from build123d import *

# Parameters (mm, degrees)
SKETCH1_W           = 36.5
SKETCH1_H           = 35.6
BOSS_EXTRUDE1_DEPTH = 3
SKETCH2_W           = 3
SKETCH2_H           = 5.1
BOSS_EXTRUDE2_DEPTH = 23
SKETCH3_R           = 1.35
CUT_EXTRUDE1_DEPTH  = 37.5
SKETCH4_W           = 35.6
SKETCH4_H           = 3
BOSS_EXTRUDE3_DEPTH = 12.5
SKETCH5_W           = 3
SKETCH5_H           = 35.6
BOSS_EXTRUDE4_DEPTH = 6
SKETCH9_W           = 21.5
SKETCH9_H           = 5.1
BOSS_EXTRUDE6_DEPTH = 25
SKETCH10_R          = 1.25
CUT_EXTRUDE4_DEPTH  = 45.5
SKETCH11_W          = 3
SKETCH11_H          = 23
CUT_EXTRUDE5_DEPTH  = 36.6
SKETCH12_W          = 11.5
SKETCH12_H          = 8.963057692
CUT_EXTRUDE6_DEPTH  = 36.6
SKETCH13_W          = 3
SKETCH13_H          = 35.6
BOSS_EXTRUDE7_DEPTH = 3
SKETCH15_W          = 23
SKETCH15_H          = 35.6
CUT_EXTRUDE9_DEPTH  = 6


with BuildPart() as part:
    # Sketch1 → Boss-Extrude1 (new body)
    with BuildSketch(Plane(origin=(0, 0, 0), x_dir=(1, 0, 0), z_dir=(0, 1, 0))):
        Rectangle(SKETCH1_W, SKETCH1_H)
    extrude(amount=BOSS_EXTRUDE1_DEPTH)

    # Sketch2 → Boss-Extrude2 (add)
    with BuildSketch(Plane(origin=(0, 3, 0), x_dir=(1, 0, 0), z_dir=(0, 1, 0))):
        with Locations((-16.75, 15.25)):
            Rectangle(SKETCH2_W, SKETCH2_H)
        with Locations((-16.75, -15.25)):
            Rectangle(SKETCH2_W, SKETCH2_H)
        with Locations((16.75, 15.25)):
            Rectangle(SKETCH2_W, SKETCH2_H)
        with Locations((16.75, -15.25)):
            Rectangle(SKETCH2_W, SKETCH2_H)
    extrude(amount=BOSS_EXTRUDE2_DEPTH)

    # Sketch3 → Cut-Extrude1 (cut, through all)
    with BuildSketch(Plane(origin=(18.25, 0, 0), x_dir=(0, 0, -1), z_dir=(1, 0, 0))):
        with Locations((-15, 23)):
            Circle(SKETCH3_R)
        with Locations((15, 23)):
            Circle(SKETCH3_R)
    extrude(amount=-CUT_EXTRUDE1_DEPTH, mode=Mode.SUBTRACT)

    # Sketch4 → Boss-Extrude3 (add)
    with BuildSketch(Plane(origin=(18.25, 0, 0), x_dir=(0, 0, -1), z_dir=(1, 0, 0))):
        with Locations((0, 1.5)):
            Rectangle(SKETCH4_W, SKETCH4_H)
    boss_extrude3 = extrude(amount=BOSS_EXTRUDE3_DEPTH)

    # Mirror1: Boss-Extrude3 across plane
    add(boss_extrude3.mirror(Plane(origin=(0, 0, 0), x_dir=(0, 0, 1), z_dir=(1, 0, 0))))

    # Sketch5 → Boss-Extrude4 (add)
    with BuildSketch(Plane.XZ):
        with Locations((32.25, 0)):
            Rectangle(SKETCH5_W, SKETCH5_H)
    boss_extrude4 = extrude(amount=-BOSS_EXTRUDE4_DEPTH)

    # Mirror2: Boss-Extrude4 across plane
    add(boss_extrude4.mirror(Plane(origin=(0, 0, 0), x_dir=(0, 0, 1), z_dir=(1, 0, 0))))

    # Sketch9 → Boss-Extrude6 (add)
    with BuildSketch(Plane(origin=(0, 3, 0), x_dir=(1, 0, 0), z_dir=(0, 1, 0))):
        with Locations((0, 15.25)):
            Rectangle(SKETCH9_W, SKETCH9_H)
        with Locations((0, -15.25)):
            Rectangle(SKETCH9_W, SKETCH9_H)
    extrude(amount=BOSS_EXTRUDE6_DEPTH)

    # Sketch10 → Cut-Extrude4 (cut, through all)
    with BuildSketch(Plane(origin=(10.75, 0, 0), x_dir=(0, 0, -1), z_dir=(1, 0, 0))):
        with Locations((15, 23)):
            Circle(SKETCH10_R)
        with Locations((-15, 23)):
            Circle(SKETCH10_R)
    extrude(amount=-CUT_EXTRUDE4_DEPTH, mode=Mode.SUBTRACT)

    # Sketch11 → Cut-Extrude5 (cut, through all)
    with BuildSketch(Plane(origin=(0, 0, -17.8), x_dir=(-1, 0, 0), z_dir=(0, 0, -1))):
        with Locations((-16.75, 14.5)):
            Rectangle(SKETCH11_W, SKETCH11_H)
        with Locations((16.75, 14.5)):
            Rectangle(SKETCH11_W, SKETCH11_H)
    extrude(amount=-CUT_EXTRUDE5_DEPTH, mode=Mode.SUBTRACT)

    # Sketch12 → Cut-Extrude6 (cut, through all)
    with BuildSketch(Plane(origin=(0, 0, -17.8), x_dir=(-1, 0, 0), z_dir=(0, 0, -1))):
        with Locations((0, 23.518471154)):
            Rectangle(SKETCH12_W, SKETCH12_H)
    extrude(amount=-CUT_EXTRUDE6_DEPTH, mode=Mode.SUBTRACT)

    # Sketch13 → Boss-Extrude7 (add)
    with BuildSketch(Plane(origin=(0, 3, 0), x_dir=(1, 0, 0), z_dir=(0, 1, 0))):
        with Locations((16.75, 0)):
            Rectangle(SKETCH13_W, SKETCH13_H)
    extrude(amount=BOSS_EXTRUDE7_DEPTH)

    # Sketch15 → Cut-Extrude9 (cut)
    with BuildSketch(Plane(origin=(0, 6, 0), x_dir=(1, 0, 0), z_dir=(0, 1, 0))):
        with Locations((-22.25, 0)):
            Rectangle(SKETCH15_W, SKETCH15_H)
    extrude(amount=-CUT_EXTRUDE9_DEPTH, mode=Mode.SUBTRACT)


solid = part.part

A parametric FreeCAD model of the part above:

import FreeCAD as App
import Part
import Sketcher

V = App.Vector
Q = App.Units.Quantity


def add_polygon(sketch, points):
    """Adds a closed chain of lines whose ends are joined by coincident constraints."""
    first, n = sketch.GeometryCount, len(points)
    for a, b in zip(points, points[1:] + points[:1]):
        sketch.addGeometry(Part.LineSegment(App.Vector(*a, 0), App.Vector(*b, 0)), False)
    for i in range(n):
        sketch.addConstraint(Sketcher.Constraint("Coincident", first + i, 2, first + (i + 1) % n, 1))

doc = App.newDocument("Part")
body = doc.addObject("PartDesign::Body", "Body")

# Sketch on XZ plane
sketch1 = body.newObject("Sketcher::SketchObject", "Sketch")
sketch1.AttachmentSupport = (doc.getObject("XZ_Plane"), [""])
sketch1.MapMode = "FlatFace"
add_polygon(sketch1, [(-18.25, -17.8), (-18.25, 17.8), (18.25, 17.8), (18.25, -17.8)])  # lines 0-3
sketch1.addConstraint([
    Sketcher.Constraint("Vertical", 0),
    Sketcher.Constraint("Horizontal", 1),
    Sketcher.Constraint("Vertical", 2),
    Sketcher.Constraint("Horizontal", 3),
    Sketcher.Constraint("Symmetric", 0, 2, 2, 2, -1, 1),
    Sketcher.Constraint("DistanceX", 1, 1, 1, 2, Q("36.5 mm")),
    Sketcher.Constraint("DistanceY", 0, 1, 0, 2, Q("35.6 mm")),
])
pad1 = body.newObject("PartDesign::Pad", "Pad")
pad1.Profile = sketch1
pad1.Length = 3
pad1.Reversed = True

# Sketch on XZ plane
sketch2 = body.newObject("Sketcher::SketchObject", "Sketch001")
sketch2.AttachmentSupport = (doc.getObject("XZ_Plane"), [""])
sketch2.MapMode = "FlatFace"
sketch2.AttachmentOffset = App.Placement(V(0, 0, -3), App.Rotation())
add_polygon(sketch2, [(-18.25, -17.8), (-18.25, -12.7), (-15.25, -12.7), (-15.25, -17.8)])  # lines 0-3
add_polygon(sketch2, [(-18.25, 12.7), (-18.25, 17.8), (-15.25, 17.8), (-15.25, 12.7)])  # lines 4-7
add_polygon(sketch2, [(15.25, -17.8), (15.25, -12.7), (18.25, -12.7), (18.25, -17.8)])  # lines 8-11
add_polygon(sketch2, [(15.25, 12.7), (15.25, 17.8), (18.25, 17.8), (18.25, 12.7)])  # lines 12-15
sketch2.addConstraint([
    Sketcher.Constraint("Vertical", 0),
    Sketcher.Constraint("Horizontal", 1),
    Sketcher.Constraint("Vertical", 2),
    Sketcher.Constraint("Horizontal", 3),
    Sketcher.Constraint("Vertical", 4),
    Sketcher.Constraint("Horizontal", 5),
    Sketcher.Constraint("Vertical", 6),
    Sketcher.Constraint("Horizontal", 7),
    Sketcher.Constraint("Vertical", 8),
    Sketcher.Constraint("Horizontal", 9),
    Sketcher.Constraint("Vertical", 10),
    Sketcher.Constraint("Horizontal", 11),
    Sketcher.Constraint("Vertical", 12),
    Sketcher.Constraint("Horizontal", 13),
    Sketcher.Constraint("Vertical", 14),
    Sketcher.Constraint("Horizontal", 15),
    Sketcher.Constraint("Symmetric", 6, 2, 8, 2, -1, 1),
    Sketcher.Constraint("Symmetric", 4, 2, 10, 2, -1, 1),
    Sketcher.Constraint("Symmetric", 2, 2, 12, 2, -1, 1),
    Sketcher.Constraint("Symmetric", 0, 2, 14, 2, -1, 1),
    Sketcher.Constraint("Symmetric", 1, 2, 8, 2, -2),
    Sketcher.Constraint("Symmetric", 3, 2, 10, 2, -2),
    Sketcher.Constraint("DistanceX", 1, 1, 1, 2, Q("3 mm")),
    Sketcher.Constraint("DistanceY", 0, 1, 0, 2, Q("5.1 mm")),
    Sketcher.Constraint("DistanceY", 0, 2, -1, 1, Q("12.7 mm")),
    Sketcher.Constraint("DistanceX", 1, 2, 8, 2, Q("30.5 mm")),
])
pad2 = body.newObject("PartDesign::Pad", "Pad001")
pad2.Profile = sketch2
pad2.Length = 23
pad2.Reversed = True

# Sketch on YZ plane
sketch3 = body.newObject("Sketcher::SketchObject", "Sketch002")
sketch3.AttachmentSupport = (doc.getObject("YZ_Plane"), [""])
sketch3.MapMode = "FlatFace"
sketch3.AttachmentOffset = App.Placement(V(0, 0, 18.25), App.Rotation())
sketch3.addGeometry([
    Part.Circle(V(23, 15, 0), V(0, 0, 1), 1.35),
    Part.Circle(V(23, -15, 0), V(0, 0, 1), 1.35),
], False)
sketch3.addConstraint([
    Sketcher.Constraint("Equal", 0, 1),
    Sketcher.Constraint("Symmetric", 0, 3, 1, 3, -1),
    Sketcher.Constraint("Diameter", 0, Q("2.7 mm")),
    Sketcher.Constraint("DistanceX", -1, 1, 0, 3, Q("23 mm")),
    Sketcher.Constraint("DistanceY", -1, 1, 0, 3, Q("15 mm")),
])
pocket1 = body.newObject("PartDesign::Pocket", "Pocket")
pocket1.Profile = sketch3
pocket1.Type = "ThroughAll"

# Sketch on YZ plane
sketch4 = body.newObject("Sketcher::SketchObject", "Sketch003")
sketch4.AttachmentSupport = (doc.getObject("YZ_Plane"), [""])
sketch4.MapMode = "FlatFace"
sketch4.AttachmentOffset = App.Placement(V(0, 0, 18.25), App.Rotation())
add_polygon(sketch4, [(3, 17.8), (0, 17.8), (0, -17.8), (3, -17.8)])  # lines 0-3
sketch4.addConstraint([
    Sketcher.Constraint("Horizontal", 0),
    Sketcher.Constraint("Vertical", 1),
    Sketcher.Constraint("Horizontal", 2),
    Sketcher.Constraint("Vertical", 3),
    Sketcher.Constraint("Symmetric", 0, 2, 1, 2, -1, 1),
    Sketcher.Constraint("DistanceX", 0, 2, 0, 1, Q("3 mm")),
    Sketcher.Constraint("DistanceY", 1, 2, 1, 1, Q("35.6 mm")),
])
pad3 = body.newObject("PartDesign::Pad", "Pad002")
pad3.Profile = sketch4
pad3.Length = 12.5
doc.recompute()

mirrored = body.newObject("PartDesign::Mirrored", "Mirrored")
mirrored.Originals = [pad3]
mirrored.MirrorPlane = (doc.getObject("YZ_Plane"), [""])
body.Tip = mirrored

# Sketch on XZ plane
sketch5 = body.newObject("Sketcher::SketchObject", "Sketch004")
sketch5.AttachmentSupport = (doc.getObject("XZ_Plane"), [""])
sketch5.MapMode = "FlatFace"
add_polygon(sketch5, [(30.75, 17.8), (30.75, -17.8), (33.75, -17.8), (33.75, 17.8)])  # lines 0-3
sketch5.addConstraint([
    Sketcher.Constraint("Vertical", 0),
    Sketcher.Constraint("Horizontal", 1),
    Sketcher.Constraint("Vertical", 2),
    Sketcher.Constraint("Horizontal", 3),
    Sketcher.Constraint("DistanceX", 1, 1, 1, 2, Q("3 mm")),
    Sketcher.Constraint("DistanceY", 0, 2, 0, 1, Q("35.6 mm")),
    Sketcher.Constraint("DistanceY", 0, 2, -1, 1, Q("17.8 mm")),
    Sketcher.Constraint("DistanceX", -1, 1, 0, 2, Q("30.75 mm")),
])
pad4 = body.newObject("PartDesign::Pad", "Pad003")
pad4.Profile = sketch5
pad4.Length = 6
pad4.Reversed = True
doc.recompute()

mirrored2 = body.newObject("PartDesign::Mirrored", "Mirrored001")
mirrored2.Originals = [pad4]
mirrored2.MirrorPlane = (doc.getObject("YZ_Plane"), [""])
body.Tip = mirrored2

# Sketch on XZ plane
sketch6 = body.newObject("Sketcher::SketchObject", "Sketch005")
sketch6.AttachmentSupport = (doc.getObject("XZ_Plane"), [""])
sketch6.MapMode = "FlatFace"
sketch6.AttachmentOffset = App.Placement(V(0, 0, -3), App.Rotation())
add_polygon(sketch6, [(-10.75, -17.8), (-10.75, -12.7), (10.75, -12.7), (10.75, -17.8)])  # lines 0-3
add_polygon(sketch6, [(-10.75, 12.7), (-10.75, 17.8), (10.75, 17.8), (10.75, 12.7)])  # lines 4-7
sketch6.addConstraint([
    Sketcher.Constraint("Vertical", 0),
    Sketcher.Constraint("Horizontal", 1),
    Sketcher.Constraint("Vertical", 2),
    Sketcher.Constraint("Horizontal", 3),
    Sketcher.Constraint("Vertical", 4),
    Sketcher.Constraint("Horizontal", 5),
    Sketcher.Constraint("Vertical", 6),
    Sketcher.Constraint("Horizontal", 7),
    Sketcher.Constraint("Symmetric", 2, 2, 4, 2, -1, 1),
    Sketcher.Constraint("Symmetric", 0, 2, 6, 2, -1, 1),
    Sketcher.Constraint("Vertical", 3, 2, 4, 2),
    Sketcher.Constraint("DistanceX", 1, 1, 1, 2, Q("21.5 mm")),
    Sketcher.Constraint("DistanceY", 0, 1, 0, 2, Q("5.1 mm")),
    Sketcher.Constraint("DistanceY", 0, 2, -1, 1, Q("12.7 mm")),
])
pad5 = body.newObject("PartDesign::Pad", "Pad004")
pad5.Profile = sketch6
pad5.Length = 25
pad5.Reversed = True

# Sketch on YZ plane
sketch7 = body.newObject("Sketcher::SketchObject", "Sketch006")
sketch7.AttachmentSupport = (doc.getObject("YZ_Plane"), [""])
sketch7.MapMode = "FlatFace"
sketch7.AttachmentOffset = App.Placement(V(0, 0, 10.75), App.Rotation())
sketch7.addGeometry([
    Part.Circle(V(23, -15, 0), V(0, 0, 1), 1.25),
    Part.Circle(V(23, 15, 0), V(0, 0, 1), 1.25),
], False)
sketch7.addConstraint([
    Sketcher.Constraint("Equal", 0, 1),
    Sketcher.Constraint("Symmetric", 0, 3, 1, 3, -1),
    Sketcher.Constraint("Diameter", 0, Q("2.5 mm")),
    Sketcher.Constraint("DistanceX", -1, 1, 0, 3, Q("23 mm")),
    Sketcher.Constraint("DistanceY", 0, 3, -1, 1, Q("15 mm")),
])
pocket2 = body.newObject("PartDesign::Pocket", "Pocket001")
pocket2.Profile = sketch7
pocket2.Type = "ThroughAll"

# Sketch on XY plane
sketch8 = body.newObject("Sketcher::SketchObject", "Sketch007")
sketch8.AttachmentSupport = (doc.getObject("XY_Plane"), [""])
sketch8.MapMode = "FlatFace"
sketch8.AttachmentOffset = App.Placement(V(0, 0, -17.8), App.Rotation())
add_polygon(sketch8, [(18.25, 26), (18.25, 3), (15.25, 3), (15.25, 26)])  # lines 0-3
add_polygon(sketch8, [(-15.25, 26), (-15.25, 3), (-18.25, 3), (-18.25, 26)])  # lines 4-7
sketch8.addConstraint([
    Sketcher.Constraint("Vertical", 0),
    Sketcher.Constraint("Horizontal", 1),
    Sketcher.Constraint("Vertical", 2),
    Sketcher.Constraint("Horizontal", 3),
    Sketcher.Constraint("Vertical", 4),
    Sketcher.Constraint("Horizontal", 5),
    Sketcher.Constraint("Vertical", 6),
    Sketcher.Constraint("Horizontal", 7),
    Sketcher.Constraint("Symmetric", 1, 2, 4, 2, -2),
    Sketcher.Constraint("Symmetric", 3, 2, 6, 2, -2),
    Sketcher.Constraint("DistanceX", 1, 2, 1, 1, Q("3 mm")),
    Sketcher.Constraint("DistanceY", 0, 2, 0, 1, Q("23 mm")),
    Sketcher.Constraint("DistanceY", -1, 1, 0, 2, Q("3 mm")),
    Sketcher.Constraint("DistanceX", 4, 2, 1, 2, Q("30.5 mm")),
])
pocket3 = body.newObject("PartDesign::Pocket", "Pocket002")
pocket3.Profile = sketch8
pocket3.Type = "ThroughAll"
pocket3.Reversed = True

# Sketch on XY plane
sketch9 = body.newObject("Sketcher::SketchObject", "Sketch008")
sketch9.AttachmentSupport = (doc.getObject("XY_Plane"), [""])
sketch9.MapMode = "FlatFace"
sketch9.AttachmentOffset = App.Placement(V(0, 0, -17.8), App.Rotation())
add_polygon(sketch9, [(5.75, 28), (5.75, 19.036942), (-5.75, 19.036942), (-5.75, 28)])  # lines 0-3
sketch9.addConstraint([
    Sketcher.Constraint("Vertical", 0),
    Sketcher.Constraint("Horizontal", 1),
    Sketcher.Constraint("Vertical", 2),
    Sketcher.Constraint("Horizontal", 3),
    Sketcher.Constraint("DistanceX", 1, 2, 1, 1, Q("11.5 mm")),
    Sketcher.Constraint("DistanceY", -1, 1, 2, 2, Q("28 mm")),
    Sketcher.Constraint("DistanceX", -1, 1, 0, 2, Q("5.75 mm")),
    Sketcher.Constraint("DistanceY", 0, 2, 0, 1, Q("8.963058 mm")),
])
pocket4 = body.newObject("PartDesign::Pocket", "Pocket003")
pocket4.Profile = sketch9
pocket4.Type = "ThroughAll"
pocket4.Reversed = True

# Sketch on XZ plane
sketch10 = body.newObject("Sketcher::SketchObject", "Sketch009")
sketch10.AttachmentSupport = (doc.getObject("XZ_Plane"), [""])
sketch10.MapMode = "FlatFace"
sketch10.AttachmentOffset = App.Placement(V(0, 0, -3), App.Rotation())
add_polygon(sketch10, [(15.25, -17.8), (15.25, 17.8), (18.25, 17.8), (18.25, -17.8)])  # lines 0-3
sketch10.addConstraint([
    Sketcher.Constraint("Vertical", 0),
    Sketcher.Constraint("Horizontal", 1),
    Sketcher.Constraint("Vertical", 2),
    Sketcher.Constraint("Horizontal", 3),
    Sketcher.Constraint("DistanceX", 1, 1, 1, 2, Q("3 mm")),
    Sketcher.Constraint("DistanceY", 0, 1, 0, 2, Q("35.6 mm")),
    Sketcher.Constraint("DistanceY", -1, 1, 0, 2, Q("17.8 mm")),
    Sketcher.Constraint("DistanceX", -1, 1, 0, 2, Q("15.25 mm")),
])
pad6 = body.newObject("PartDesign::Pad", "Pad005")
pad6.Profile = sketch10
pad6.Length = 3
pad6.Reversed = True

# Sketch on XZ plane
sketch11 = body.newObject("Sketcher::SketchObject", "Sketch010")
sketch11.AttachmentSupport = (doc.getObject("XZ_Plane"), [""])
sketch11.MapMode = "FlatFace"
sketch11.AttachmentOffset = App.Placement(V(0, 0, -6), App.Rotation())
add_polygon(sketch11, [(-33.75, -17.8), (-33.75, 17.8), (-10.75, 17.8), (-10.75, -17.8)])  # lines 0-3
sketch11.addConstraint([
    Sketcher.Constraint("Vertical", 0),
    Sketcher.Constraint("Horizontal", 1),
    Sketcher.Constraint("Vertical", 2),
    Sketcher.Constraint("Horizontal", 3),
    Sketcher.Constraint("DistanceX", 1, 1, 1, 2, Q("23 mm")),
    Sketcher.Constraint("DistanceY", 0, 1, 0, 2, Q("35.6 mm")),
    Sketcher.Constraint("DistanceY", -1, 1, 0, 2, Q("17.8 mm")),
    Sketcher.Constraint("DistanceX", 0, 2, -1, 1, Q("33.75 mm")),
])
pocket5 = body.newObject("PartDesign::Pocket", "Pocket004")
pocket5.Profile = sketch11
pocket5.Length = 6
pocket5.Reversed = True

doc.recompute()
